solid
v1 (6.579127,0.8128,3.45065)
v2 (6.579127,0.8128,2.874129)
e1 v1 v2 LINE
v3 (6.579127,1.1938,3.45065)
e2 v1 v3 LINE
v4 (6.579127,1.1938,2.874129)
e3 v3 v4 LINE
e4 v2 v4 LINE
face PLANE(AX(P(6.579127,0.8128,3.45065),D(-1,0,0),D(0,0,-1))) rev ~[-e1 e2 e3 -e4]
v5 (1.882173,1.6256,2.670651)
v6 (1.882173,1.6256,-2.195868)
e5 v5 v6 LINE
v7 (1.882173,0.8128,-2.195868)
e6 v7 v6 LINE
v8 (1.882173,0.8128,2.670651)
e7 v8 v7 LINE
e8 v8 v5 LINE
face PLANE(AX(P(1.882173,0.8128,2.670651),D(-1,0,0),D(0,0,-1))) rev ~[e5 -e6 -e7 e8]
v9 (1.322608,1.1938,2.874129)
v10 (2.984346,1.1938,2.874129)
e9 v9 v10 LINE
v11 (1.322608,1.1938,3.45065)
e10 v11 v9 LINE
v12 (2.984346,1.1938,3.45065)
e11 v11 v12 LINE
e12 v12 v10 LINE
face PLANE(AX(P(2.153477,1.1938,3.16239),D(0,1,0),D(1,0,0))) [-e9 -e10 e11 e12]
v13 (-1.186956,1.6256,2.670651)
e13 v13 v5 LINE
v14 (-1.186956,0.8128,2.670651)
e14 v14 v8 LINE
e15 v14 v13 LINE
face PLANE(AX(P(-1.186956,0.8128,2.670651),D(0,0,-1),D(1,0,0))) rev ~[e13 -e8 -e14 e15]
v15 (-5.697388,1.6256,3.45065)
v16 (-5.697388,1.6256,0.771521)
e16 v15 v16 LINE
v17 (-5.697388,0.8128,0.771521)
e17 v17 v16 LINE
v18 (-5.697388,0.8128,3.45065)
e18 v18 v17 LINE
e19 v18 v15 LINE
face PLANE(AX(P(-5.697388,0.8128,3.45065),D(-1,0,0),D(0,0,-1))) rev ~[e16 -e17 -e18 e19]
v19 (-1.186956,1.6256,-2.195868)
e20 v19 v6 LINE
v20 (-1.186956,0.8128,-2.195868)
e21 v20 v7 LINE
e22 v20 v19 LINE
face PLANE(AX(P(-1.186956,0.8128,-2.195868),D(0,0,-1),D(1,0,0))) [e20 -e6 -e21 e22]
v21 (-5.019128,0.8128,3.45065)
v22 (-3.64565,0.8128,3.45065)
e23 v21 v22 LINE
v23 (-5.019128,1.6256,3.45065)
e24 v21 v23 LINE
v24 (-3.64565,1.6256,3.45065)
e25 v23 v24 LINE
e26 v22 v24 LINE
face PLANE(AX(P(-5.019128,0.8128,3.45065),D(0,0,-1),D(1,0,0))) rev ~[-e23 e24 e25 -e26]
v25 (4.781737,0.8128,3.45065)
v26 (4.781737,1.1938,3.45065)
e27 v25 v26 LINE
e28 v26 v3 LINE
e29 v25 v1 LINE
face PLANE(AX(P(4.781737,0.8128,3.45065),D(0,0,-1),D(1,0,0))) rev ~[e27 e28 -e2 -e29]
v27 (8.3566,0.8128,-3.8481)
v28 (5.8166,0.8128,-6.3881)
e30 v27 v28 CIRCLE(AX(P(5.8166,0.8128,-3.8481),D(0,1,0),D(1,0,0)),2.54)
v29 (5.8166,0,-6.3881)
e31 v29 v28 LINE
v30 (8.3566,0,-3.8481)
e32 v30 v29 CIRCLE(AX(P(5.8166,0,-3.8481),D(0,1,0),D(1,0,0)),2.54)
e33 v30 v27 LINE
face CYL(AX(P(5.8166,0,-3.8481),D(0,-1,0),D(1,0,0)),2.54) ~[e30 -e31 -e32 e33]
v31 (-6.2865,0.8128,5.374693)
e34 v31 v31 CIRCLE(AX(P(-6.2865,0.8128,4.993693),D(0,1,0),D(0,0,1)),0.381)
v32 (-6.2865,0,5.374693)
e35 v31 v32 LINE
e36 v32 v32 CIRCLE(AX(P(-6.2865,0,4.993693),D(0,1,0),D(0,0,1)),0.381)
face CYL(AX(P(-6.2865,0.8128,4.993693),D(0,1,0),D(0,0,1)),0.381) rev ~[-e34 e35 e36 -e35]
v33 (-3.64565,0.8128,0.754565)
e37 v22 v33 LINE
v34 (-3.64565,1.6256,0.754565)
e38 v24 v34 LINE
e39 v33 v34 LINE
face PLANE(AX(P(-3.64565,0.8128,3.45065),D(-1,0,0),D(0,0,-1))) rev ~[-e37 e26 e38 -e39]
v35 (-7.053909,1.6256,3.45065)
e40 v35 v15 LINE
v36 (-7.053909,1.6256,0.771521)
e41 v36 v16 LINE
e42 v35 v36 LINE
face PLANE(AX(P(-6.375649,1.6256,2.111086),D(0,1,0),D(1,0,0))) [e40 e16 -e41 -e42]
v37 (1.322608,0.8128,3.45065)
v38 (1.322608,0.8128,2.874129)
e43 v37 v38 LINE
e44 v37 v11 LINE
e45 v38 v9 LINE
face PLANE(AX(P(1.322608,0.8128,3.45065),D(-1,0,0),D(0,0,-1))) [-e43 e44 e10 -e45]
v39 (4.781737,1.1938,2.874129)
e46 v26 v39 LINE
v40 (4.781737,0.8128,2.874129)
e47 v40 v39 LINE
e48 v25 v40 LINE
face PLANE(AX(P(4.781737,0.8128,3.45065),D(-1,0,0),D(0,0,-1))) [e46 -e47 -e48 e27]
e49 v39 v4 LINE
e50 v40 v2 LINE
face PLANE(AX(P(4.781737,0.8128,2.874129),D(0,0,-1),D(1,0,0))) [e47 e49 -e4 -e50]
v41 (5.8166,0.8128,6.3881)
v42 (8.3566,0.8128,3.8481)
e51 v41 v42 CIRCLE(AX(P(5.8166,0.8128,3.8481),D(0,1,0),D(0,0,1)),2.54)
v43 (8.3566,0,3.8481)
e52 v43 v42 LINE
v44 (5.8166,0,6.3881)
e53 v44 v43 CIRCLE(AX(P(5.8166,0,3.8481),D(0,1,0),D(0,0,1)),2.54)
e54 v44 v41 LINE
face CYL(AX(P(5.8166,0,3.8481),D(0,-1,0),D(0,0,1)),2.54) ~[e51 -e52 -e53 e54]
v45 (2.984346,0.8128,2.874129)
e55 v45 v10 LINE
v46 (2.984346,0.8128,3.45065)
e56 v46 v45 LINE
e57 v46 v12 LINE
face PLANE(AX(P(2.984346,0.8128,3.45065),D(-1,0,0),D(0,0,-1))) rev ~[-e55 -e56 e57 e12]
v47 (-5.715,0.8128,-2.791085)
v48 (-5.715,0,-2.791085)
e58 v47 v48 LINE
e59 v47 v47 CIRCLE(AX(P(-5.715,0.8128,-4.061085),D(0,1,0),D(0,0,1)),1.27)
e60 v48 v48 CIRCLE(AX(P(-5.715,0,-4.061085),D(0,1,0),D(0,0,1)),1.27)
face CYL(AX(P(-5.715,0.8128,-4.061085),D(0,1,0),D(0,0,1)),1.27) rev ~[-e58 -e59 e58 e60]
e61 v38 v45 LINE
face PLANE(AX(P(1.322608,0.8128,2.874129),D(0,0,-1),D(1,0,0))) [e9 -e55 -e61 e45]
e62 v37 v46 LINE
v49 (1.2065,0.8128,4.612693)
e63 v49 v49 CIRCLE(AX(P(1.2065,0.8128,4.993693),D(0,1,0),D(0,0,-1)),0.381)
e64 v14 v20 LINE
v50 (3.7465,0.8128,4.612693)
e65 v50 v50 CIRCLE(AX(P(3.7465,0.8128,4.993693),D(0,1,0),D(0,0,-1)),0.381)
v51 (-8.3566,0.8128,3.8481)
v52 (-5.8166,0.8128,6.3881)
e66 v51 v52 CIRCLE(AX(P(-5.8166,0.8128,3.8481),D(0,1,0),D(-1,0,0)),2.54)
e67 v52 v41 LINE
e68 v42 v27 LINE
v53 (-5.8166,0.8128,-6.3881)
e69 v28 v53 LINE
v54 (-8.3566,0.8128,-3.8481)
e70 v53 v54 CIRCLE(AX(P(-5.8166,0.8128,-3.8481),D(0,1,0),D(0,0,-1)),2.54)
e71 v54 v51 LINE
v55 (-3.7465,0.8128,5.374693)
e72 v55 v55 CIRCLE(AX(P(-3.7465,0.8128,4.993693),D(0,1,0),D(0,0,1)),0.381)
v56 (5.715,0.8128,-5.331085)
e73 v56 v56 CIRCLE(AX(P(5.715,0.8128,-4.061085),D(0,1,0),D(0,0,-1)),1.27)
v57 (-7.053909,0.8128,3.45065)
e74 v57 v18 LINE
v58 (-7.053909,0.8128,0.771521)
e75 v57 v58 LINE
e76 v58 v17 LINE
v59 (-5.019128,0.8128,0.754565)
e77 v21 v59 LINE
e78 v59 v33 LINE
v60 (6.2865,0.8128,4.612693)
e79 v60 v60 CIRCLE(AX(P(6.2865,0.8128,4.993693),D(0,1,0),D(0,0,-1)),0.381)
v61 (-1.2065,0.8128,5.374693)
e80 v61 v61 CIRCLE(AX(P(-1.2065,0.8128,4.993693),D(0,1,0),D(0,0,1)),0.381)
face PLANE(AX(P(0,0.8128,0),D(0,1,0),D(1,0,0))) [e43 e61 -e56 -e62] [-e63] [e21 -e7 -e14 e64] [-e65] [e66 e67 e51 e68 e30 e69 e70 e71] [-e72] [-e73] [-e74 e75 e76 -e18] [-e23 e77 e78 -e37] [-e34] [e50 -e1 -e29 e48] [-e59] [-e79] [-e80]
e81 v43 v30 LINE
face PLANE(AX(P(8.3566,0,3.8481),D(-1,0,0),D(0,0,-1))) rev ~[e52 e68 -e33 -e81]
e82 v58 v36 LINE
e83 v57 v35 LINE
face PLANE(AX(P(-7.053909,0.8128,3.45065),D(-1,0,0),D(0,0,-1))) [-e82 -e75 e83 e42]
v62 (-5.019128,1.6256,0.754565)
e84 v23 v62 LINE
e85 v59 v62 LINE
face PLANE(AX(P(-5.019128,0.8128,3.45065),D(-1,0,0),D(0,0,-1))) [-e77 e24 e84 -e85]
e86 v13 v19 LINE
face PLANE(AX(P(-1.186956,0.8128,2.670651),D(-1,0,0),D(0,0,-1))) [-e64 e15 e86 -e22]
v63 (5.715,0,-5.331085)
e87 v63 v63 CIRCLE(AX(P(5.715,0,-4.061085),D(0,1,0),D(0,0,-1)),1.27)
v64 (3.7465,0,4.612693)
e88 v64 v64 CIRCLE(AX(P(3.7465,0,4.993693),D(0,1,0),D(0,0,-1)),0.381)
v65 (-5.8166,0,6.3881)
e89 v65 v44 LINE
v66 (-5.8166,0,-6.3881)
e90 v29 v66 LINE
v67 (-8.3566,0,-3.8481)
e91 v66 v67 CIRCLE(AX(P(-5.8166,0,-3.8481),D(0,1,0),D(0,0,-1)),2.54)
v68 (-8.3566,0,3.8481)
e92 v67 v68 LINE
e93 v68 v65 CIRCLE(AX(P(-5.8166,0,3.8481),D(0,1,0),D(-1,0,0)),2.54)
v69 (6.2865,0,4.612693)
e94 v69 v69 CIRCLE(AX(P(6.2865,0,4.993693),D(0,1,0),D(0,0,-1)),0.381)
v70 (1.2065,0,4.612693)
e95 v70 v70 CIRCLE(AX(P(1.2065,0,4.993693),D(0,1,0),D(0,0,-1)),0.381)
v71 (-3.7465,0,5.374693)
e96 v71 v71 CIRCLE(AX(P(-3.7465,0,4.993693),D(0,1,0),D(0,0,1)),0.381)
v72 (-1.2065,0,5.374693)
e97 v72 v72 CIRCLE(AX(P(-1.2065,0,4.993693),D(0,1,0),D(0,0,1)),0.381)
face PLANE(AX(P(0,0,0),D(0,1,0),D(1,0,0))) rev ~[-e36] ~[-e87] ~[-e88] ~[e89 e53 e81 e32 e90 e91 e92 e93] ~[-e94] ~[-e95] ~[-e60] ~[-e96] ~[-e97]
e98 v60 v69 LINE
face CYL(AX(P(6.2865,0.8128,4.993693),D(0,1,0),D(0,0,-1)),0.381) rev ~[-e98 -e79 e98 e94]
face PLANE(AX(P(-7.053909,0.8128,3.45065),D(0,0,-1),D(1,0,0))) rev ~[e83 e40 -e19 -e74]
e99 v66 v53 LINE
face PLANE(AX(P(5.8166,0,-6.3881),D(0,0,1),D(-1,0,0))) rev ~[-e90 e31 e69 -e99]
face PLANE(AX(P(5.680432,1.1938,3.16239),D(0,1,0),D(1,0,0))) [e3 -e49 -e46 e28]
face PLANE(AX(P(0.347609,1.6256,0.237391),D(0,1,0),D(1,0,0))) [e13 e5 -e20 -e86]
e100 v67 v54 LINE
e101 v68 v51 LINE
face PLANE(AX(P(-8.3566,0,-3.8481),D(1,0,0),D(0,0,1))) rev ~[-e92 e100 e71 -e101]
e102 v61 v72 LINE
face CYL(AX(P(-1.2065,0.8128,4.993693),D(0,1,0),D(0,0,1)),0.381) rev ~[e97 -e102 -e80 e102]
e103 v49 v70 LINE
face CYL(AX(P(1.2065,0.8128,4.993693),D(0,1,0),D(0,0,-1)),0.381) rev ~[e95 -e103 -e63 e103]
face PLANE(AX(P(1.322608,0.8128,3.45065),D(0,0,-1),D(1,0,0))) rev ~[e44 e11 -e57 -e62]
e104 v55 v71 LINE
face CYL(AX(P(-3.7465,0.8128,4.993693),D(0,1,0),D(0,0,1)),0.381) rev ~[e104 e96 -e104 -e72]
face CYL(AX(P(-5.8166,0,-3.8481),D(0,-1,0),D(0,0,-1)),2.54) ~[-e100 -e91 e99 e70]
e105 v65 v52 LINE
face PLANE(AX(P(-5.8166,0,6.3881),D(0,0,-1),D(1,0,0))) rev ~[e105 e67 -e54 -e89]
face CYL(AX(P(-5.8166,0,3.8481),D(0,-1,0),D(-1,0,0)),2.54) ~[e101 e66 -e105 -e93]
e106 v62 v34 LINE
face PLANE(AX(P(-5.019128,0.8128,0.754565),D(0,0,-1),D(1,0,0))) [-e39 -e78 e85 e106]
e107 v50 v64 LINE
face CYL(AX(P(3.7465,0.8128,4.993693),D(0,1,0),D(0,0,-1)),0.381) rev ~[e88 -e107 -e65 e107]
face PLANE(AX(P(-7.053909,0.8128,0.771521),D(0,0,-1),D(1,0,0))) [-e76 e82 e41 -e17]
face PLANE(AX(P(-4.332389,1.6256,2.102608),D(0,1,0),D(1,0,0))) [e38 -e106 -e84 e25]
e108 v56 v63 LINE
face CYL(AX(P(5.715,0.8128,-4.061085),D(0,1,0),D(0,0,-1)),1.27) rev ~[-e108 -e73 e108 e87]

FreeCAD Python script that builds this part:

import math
import FreeCAD as App
import Part
import Sketcher

V = App.Vector
Q = App.Units.Quantity


def add_polygon(sketch, points):
    """Adds a closed chain of lines whose ends are joined by coincident constraints."""
    first, n = sketch.GeometryCount, len(points)
    for a, b in zip(points, points[1:] + points[:1]):
        sketch.addGeometry(Part.LineSegment(App.Vector(*a, 0), App.Vector(*b, 0)), False)
    for i in range(n):
        sketch.addConstraint(Sketcher.Constraint("Coincident", first + i, 2, first + (i + 1) % n, 1))

doc = App.newDocument("Part")
body = doc.addObject("PartDesign::Body", "Body")

# Sketch on XZ plane
sketch1 = doc.addObject("Sketcher::SketchObject", "Sketch")
body.addObject(sketch1)
sketch1.AttachmentSupport = (doc.XZ_Plane, [""])
sketch1.MapMode = "FlatFace"
sketch1.addGeometry(Part.LineSegment(V(5.8, -6.4, 0), V(-5.8, -6.4, 0)), False)
sketch1.addGeometry(Part.ArcOfCircle(Part.Circle(V(-5.8, -3.8, 0), V(0, 0, 1), 2.5), math.radians(-180), math.radians(-90)), False)
sketch1.addGeometry(Part.LineSegment(V(-8.4, -3.8, 0), V(-8.4, 3.8, 0)), False)
sketch1.addGeometry(Part.ArcOfCircle(Part.Circle(V(-5.8, 3.8, 0), V(0, 0, 1), 2.5), math.radians(90), math.radians(180)), False)
sketch1.addGeometry(Part.LineSegment(V(-5.8, 6.4, 0), V(5.8, 6.4, 0)), False)
sketch1.addGeometry(Part.ArcOfCircle(Part.Circle(V(5.8, 3.8, 0), V(0, 0, 1), 2.5), math.radians(0), math.radians(90)), False)
sketch1.addGeometry(Part.LineSegment(V(8.4, 3.8, 0), V(8.4, -3.8, 0)), False)
sketch1.addGeometry(Part.ArcOfCircle(Part.Circle(V(5.8, -3.8, 0), V(0, 0, 1), 2.5), math.radians(-90), math.radians(0)), False)
sketch1.addConstraint(Sketcher.Constraint("Tangent", 0, 2, 1, 2))
sketch1.addConstraint(Sketcher.Constraint("Tangent", 1, 1, 2, 1))
sketch1.addConstraint(Sketcher.Constraint("Tangent", 2, 2, 3, 2))
sketch1.addConstraint(Sketcher.Constraint("Tangent", 3, 1, 4, 1))
sketch1.addConstraint(Sketcher.Constraint("Tangent", 4, 2, 5, 2))
sketch1.addConstraint(Sketcher.Constraint("Tangent", 5, 1, 6, 1))
sketch1.addConstraint(Sketcher.Constraint("Tangent", 6, 2, 7, 2))
sketch1.addConstraint(Sketcher.Constraint("Tangent", 7, 1, 0, 1))
sketch1.addConstraint(Sketcher.Constraint("Horizontal", 0))
sketch1.addConstraint(Sketcher.Constraint("Vertical", 2))
sketch1.addConstraint(Sketcher.Constraint("Horizontal", 4))
sketch1.addConstraint(Sketcher.Constraint("Vertical", 6))
sketch1.addConstraint(Sketcher.Constraint("Equal", 1, 3))
sketch1.addConstraint(Sketcher.Constraint("Equal", 3, 5))
sketch1.addConstraint(Sketcher.Constraint("Equal", 5, 7))
sketch1.addConstraint(Sketcher.Constraint("Symmetric", 1, 3, 5, 3, -1, 1))
sketch1.addConstraint(Sketcher.Constraint("Radius", 1, Q("0.1 in")))
sketch1.addConstraint(Sketcher.Constraint("DistanceX", 0, 2, 0, 1, Q("0.458 in")))
sketch1.addConstraint(Sketcher.Constraint("DistanceY", 2, 1, 2, 2, Q("0.303 in")))
pad1 = doc.addObject("PartDesign::Pad", "Pad")
body.addObject(pad1)
pad1.Profile = sketch1
pad1.Length = Q("0.032 in")
pad1.Reversed = True

# Sketch on XZ plane
sketch2 = doc.addObject("Sketcher::SketchObject", "Sketch001")
body.addObject(sketch2)
sketch2.AttachmentSupport = (doc.XZ_Plane, [""])
sketch2.MapMode = "FlatFace"
sketch2.AttachmentOffset = App.Placement(V(0, 0, -0.032 * 25.4), App.Rotation())
sketch2.addGeometry(Part.Circle(V(-1.21, 4.99, 0), V(0, 0, 1), 0.38), False)
sketch2.addGeometry(Part.Circle(V(-5.71, -4.06, 0), V(0, 0, 1), 1.27), False)
sketch2.addGeometry(Part.Circle(V(-3.75, 4.99, 0), V(0, 0, 1), 0.38), False)
sketch2.addGeometry(Part.Circle(V(-6.29, 4.99, 0), V(0, 0, 1), 0.38), False)
sketch2.addGeometry(Part.Circle(V(6.29, 4.99, 0), V(0, 0, 1), 0.38), False)
sketch2.addGeometry(Part.Circle(V(3.75, 4.99, 0), V(0, 0, 1), 0.38), False)
sketch2.addGeometry(Part.Circle(V(5.71, -4.06, 0), V(0, 0, 1), 1.27), False)
sketch2.addGeometry(Part.Circle(V(1.21, 4.99, 0), V(0, 0, 1), 0.38), False)
sketch2.addConstraint(Sketcher.Constraint("Equal", 0, 2))
sketch2.addConstraint(Sketcher.Constraint("Equal", 2, 3))
sketch2.addConstraint(Sketcher.Constraint("Equal", 3, 4))
sketch2.addConstraint(Sketcher.Constraint("Equal", 4, 5))
sketch2.addConstraint(Sketcher.Constraint("Equal", 1, 6))
sketch2.addConstraint(Sketcher.Constraint("Equal", 5, 7))
sketch2.addConstraint(Sketcher.Constraint("Symmetric", 3, 3, 4, 3, -2))
sketch2.addConstraint(Sketcher.Constraint("Symmetric", 2, 3, 5, 3, -2))
sketch2.addConstraint(Sketcher.Constraint("Symmetric", 1, 3, 6, 3, -2))
sketch2.addConstraint(Sketcher.Constraint("Symmetric", 0, 3, 7, 3, -2))
sketch2.addConstraint(Sketcher.Constraint("Horizontal", 0, 3, 2, 3))
sketch2.addConstraint(Sketcher.Constraint("Horizontal", 2, 3, 3, 3))
sketch2.addConstraint(Sketcher.Constraint("Diameter", 1, Q("0.1 in")))
sketch2.addConstraint(Sketcher.Constraint("Diameter", 0, Q("0.03 in")))
sketch2.addConstraint(Sketcher.Constraint("DistanceX", 2, 3, 0, 3, Q("0.1 in")))
sketch2.addConstraint(Sketcher.Constraint("DistanceX", 3, 3, 2, 3, Q("0.1 in")))
sketch2.addConstraint(Sketcher.Constraint("DistanceX", 1, 3, 6, 3, Q("0.45 in")))
sketch2.addConstraint(Sketcher.Constraint("DistanceX", 0, 3, 4, 3, Q("0.295 in")))
sketch2.addConstraint(Sketcher.Constraint("DistanceY", -1, 1, 0, 3, Q("4.993693 mm")))
sketch2.addConstraint(Sketcher.Constraint("DistanceY", 1, 3, -1, 1, Q("4.061085 mm")))
pocket1 = doc.addObject("PartDesign::Pocket", "Pocket")
body.addObject(pocket1)
pocket1.Profile = sketch2
pocket1.Length = Q("0.032 in")
pocket1.Reversed = True

# Sketch on XZ plane
sketch3 = doc.addObject("Sketcher::SketchObject", "Sketch002")
body.addObject(sketch3)
sketch3.AttachmentSupport = (doc.XZ_Plane, [""])
sketch3.MapMode = "FlatFace"
sketch3.AttachmentOffset = App.Placement(V(0, 0, -0.032 * 25.4), App.Rotation())
add_polygon(sketch3, [(-1.2, -2.2), (-1.2, 2.7), (1.9, 2.7), (1.9, -2.2)])  # lines 0-3
add_polygon(sketch3, [(-5, 0.8), (-5, 3.5), (-3.6, 3.5), (-3.6, 0.8)])  # lines 4-7
add_polygon(sketch3, [(-7.1, 0.8), (-7.1, 3.5), (-5.7, 3.5), (-5.7, 0.8)])  # lines 8-11
sketch3.addConstraint(Sketcher.Constraint("Vertical", 0))
sketch3.addConstraint(Sketcher.Constraint("Horizontal", 1))
sketch3.addConstraint(Sketcher.Constraint("Vertical", 2))
sketch3.addConstraint(Sketcher.Constraint("Horizontal", 3))
sketch3.addConstraint(Sketcher.Constraint("Vertical", 4))
sketch3.addConstraint(Sketcher.Constraint("Horizontal", 5))
sketch3.addConstraint(Sketcher.Constraint("Vertical", 6))
sketch3.addConstraint(Sketcher.Constraint("Horizontal", 7))
sketch3.addConstraint(Sketcher.Constraint("Vertical", 8))
sketch3.addConstraint(Sketcher.Constraint("Horizontal", 9))
sketch3.addConstraint(Sketcher.Constraint("Vertical", 10))
sketch3.addConstraint(Sketcher.Constraint("Horizontal", 11))
sketch3.addConstraint(Sketcher.Constraint("Horizontal", 5, 2, 8, 2))
sketch3.addConstraint(Sketcher.Constraint("DistanceX", 1, 1, 1, 2, Q("3.069129 mm")))
sketch3.addConstraint(Sketcher.Constraint("DistanceX", 9, 1, 9, 2, Q("1.356521 mm")))
sketch3.addConstraint(Sketcher.Constraint("DistanceY", 0, 1, 0, 2, Q("4.866519 mm")))
sketch3.addConstraint(Sketcher.Constraint("DistanceY", 8, 1, 8, 2, Q("2.679129 mm")))
sketch3.addConstraint(Sketcher.Constraint("DistanceY", 0, 2, 4, 2, Q("0.78 mm")))
sketch3.addConstraint(Sketcher.Constraint("DistanceX", 4, 2, 1, 2, Q("6.901301 mm")))
sketch3.addConstraint(Sketcher.Constraint("DistanceX", 5, 1, 5, 2, Q("1.373478 mm")))
sketch3.addConstraint(Sketcher.Constraint("DistanceY", 4, 1, 4, 2, Q("2.696086 mm")))
sketch3.addConstraint(Sketcher.Constraint("DistanceY", -1, 1, 0, 2, Q("2.670651 mm")))
sketch3.addConstraint(Sketcher.Constraint("DistanceX", 5, 2, -1, 1, Q("3.64565 mm")))
sketch3.addConstraint(Sketcher.Constraint("DistanceX", 8, 2, -1, 1, Q("7.053909 mm")))
pad2 = doc.addObject("PartDesign::Pad", "Pad001")
body.addObject(pad2)
pad2.Profile = sketch3
pad2.Length = Q("0.032 in")
pad2.Reversed = True

# Sketch on XZ plane
sketch4 = doc.addObject("Sketcher::SketchObject", "Sketch003")
body.addObject(sketch4)
sketch4.AttachmentSupport = (doc.XZ_Plane, [""])
sketch4.MapMode = "FlatFace"
sketch4.AttachmentOffset = App.Placement(V(0, 0, -0.032 * 25.4), App.Rotation())
add_polygon(sketch4, [(1.3, 2.9), (1.3, 3.5), (3, 3.5), (3, 2.9)])  # lines 0-3
add_polygon(sketch4, [(4.8, 2.9), (4.8, 3.5), (6.6, 3.5), (6.6, 2.9)])  # lines 4-7
sketch4.addConstraint(Sketcher.Constraint("Vertical", 0))
sketch4.addConstraint(Sketcher.Constraint("Horizontal", 1))
sketch4.addConstraint(Sketcher.Constraint("Vertical", 2))
sketch4.addConstraint(Sketcher.Constraint("Horizontal", 3))
sketch4.addConstraint(Sketcher.Constraint("Vertical", 4))
sketch4.addConstraint(Sketcher.Constraint("Horizontal", 5))
sketch4.addConstraint(Sketcher.Constraint("Vertical", 6))
sketch4.addConstraint(Sketcher.Constraint("Horizontal", 7))
sketch4.addConstraint(Sketcher.Constraint("Horizontal", 1, 2, 4, 2))
sketch4.addConstraint(Sketcher.Constraint("Horizontal", 3, 2, 6, 2))
sketch4.addConstraint(Sketcher.Constraint("DistanceX", 1, 1, 1, 2, Q("1.661738 mm")))
sketch4.addConstraint(Sketcher.Constraint("DistanceX", 5, 1, 5, 2, Q("1.79739 mm")))
sketch4.addConstraint(Sketcher.Constraint("DistanceY", 0, 1, 0, 2, Q("0.576521 mm")))
sketch4.addConstraint(Sketcher.Constraint("DistanceX", -1, 1, 0, 2, Q("1.322608 mm")))
sketch4.addConstraint(Sketcher.Constraint("DistanceY", -1, 1, 0, 2, Q("3.45065 mm")))
sketch4.addConstraint(Sketcher.Constraint("DistanceX", 1, 2, 4, 2, Q("1.79739 mm")))
pad3 = doc.addObject("PartDesign::Pad", "Pad002")
body.addObject(pad3)
pad3.Profile = sketch4
pad3.Length = Q("0.015 in")
pad3.Reversed = True

doc.recompute()
